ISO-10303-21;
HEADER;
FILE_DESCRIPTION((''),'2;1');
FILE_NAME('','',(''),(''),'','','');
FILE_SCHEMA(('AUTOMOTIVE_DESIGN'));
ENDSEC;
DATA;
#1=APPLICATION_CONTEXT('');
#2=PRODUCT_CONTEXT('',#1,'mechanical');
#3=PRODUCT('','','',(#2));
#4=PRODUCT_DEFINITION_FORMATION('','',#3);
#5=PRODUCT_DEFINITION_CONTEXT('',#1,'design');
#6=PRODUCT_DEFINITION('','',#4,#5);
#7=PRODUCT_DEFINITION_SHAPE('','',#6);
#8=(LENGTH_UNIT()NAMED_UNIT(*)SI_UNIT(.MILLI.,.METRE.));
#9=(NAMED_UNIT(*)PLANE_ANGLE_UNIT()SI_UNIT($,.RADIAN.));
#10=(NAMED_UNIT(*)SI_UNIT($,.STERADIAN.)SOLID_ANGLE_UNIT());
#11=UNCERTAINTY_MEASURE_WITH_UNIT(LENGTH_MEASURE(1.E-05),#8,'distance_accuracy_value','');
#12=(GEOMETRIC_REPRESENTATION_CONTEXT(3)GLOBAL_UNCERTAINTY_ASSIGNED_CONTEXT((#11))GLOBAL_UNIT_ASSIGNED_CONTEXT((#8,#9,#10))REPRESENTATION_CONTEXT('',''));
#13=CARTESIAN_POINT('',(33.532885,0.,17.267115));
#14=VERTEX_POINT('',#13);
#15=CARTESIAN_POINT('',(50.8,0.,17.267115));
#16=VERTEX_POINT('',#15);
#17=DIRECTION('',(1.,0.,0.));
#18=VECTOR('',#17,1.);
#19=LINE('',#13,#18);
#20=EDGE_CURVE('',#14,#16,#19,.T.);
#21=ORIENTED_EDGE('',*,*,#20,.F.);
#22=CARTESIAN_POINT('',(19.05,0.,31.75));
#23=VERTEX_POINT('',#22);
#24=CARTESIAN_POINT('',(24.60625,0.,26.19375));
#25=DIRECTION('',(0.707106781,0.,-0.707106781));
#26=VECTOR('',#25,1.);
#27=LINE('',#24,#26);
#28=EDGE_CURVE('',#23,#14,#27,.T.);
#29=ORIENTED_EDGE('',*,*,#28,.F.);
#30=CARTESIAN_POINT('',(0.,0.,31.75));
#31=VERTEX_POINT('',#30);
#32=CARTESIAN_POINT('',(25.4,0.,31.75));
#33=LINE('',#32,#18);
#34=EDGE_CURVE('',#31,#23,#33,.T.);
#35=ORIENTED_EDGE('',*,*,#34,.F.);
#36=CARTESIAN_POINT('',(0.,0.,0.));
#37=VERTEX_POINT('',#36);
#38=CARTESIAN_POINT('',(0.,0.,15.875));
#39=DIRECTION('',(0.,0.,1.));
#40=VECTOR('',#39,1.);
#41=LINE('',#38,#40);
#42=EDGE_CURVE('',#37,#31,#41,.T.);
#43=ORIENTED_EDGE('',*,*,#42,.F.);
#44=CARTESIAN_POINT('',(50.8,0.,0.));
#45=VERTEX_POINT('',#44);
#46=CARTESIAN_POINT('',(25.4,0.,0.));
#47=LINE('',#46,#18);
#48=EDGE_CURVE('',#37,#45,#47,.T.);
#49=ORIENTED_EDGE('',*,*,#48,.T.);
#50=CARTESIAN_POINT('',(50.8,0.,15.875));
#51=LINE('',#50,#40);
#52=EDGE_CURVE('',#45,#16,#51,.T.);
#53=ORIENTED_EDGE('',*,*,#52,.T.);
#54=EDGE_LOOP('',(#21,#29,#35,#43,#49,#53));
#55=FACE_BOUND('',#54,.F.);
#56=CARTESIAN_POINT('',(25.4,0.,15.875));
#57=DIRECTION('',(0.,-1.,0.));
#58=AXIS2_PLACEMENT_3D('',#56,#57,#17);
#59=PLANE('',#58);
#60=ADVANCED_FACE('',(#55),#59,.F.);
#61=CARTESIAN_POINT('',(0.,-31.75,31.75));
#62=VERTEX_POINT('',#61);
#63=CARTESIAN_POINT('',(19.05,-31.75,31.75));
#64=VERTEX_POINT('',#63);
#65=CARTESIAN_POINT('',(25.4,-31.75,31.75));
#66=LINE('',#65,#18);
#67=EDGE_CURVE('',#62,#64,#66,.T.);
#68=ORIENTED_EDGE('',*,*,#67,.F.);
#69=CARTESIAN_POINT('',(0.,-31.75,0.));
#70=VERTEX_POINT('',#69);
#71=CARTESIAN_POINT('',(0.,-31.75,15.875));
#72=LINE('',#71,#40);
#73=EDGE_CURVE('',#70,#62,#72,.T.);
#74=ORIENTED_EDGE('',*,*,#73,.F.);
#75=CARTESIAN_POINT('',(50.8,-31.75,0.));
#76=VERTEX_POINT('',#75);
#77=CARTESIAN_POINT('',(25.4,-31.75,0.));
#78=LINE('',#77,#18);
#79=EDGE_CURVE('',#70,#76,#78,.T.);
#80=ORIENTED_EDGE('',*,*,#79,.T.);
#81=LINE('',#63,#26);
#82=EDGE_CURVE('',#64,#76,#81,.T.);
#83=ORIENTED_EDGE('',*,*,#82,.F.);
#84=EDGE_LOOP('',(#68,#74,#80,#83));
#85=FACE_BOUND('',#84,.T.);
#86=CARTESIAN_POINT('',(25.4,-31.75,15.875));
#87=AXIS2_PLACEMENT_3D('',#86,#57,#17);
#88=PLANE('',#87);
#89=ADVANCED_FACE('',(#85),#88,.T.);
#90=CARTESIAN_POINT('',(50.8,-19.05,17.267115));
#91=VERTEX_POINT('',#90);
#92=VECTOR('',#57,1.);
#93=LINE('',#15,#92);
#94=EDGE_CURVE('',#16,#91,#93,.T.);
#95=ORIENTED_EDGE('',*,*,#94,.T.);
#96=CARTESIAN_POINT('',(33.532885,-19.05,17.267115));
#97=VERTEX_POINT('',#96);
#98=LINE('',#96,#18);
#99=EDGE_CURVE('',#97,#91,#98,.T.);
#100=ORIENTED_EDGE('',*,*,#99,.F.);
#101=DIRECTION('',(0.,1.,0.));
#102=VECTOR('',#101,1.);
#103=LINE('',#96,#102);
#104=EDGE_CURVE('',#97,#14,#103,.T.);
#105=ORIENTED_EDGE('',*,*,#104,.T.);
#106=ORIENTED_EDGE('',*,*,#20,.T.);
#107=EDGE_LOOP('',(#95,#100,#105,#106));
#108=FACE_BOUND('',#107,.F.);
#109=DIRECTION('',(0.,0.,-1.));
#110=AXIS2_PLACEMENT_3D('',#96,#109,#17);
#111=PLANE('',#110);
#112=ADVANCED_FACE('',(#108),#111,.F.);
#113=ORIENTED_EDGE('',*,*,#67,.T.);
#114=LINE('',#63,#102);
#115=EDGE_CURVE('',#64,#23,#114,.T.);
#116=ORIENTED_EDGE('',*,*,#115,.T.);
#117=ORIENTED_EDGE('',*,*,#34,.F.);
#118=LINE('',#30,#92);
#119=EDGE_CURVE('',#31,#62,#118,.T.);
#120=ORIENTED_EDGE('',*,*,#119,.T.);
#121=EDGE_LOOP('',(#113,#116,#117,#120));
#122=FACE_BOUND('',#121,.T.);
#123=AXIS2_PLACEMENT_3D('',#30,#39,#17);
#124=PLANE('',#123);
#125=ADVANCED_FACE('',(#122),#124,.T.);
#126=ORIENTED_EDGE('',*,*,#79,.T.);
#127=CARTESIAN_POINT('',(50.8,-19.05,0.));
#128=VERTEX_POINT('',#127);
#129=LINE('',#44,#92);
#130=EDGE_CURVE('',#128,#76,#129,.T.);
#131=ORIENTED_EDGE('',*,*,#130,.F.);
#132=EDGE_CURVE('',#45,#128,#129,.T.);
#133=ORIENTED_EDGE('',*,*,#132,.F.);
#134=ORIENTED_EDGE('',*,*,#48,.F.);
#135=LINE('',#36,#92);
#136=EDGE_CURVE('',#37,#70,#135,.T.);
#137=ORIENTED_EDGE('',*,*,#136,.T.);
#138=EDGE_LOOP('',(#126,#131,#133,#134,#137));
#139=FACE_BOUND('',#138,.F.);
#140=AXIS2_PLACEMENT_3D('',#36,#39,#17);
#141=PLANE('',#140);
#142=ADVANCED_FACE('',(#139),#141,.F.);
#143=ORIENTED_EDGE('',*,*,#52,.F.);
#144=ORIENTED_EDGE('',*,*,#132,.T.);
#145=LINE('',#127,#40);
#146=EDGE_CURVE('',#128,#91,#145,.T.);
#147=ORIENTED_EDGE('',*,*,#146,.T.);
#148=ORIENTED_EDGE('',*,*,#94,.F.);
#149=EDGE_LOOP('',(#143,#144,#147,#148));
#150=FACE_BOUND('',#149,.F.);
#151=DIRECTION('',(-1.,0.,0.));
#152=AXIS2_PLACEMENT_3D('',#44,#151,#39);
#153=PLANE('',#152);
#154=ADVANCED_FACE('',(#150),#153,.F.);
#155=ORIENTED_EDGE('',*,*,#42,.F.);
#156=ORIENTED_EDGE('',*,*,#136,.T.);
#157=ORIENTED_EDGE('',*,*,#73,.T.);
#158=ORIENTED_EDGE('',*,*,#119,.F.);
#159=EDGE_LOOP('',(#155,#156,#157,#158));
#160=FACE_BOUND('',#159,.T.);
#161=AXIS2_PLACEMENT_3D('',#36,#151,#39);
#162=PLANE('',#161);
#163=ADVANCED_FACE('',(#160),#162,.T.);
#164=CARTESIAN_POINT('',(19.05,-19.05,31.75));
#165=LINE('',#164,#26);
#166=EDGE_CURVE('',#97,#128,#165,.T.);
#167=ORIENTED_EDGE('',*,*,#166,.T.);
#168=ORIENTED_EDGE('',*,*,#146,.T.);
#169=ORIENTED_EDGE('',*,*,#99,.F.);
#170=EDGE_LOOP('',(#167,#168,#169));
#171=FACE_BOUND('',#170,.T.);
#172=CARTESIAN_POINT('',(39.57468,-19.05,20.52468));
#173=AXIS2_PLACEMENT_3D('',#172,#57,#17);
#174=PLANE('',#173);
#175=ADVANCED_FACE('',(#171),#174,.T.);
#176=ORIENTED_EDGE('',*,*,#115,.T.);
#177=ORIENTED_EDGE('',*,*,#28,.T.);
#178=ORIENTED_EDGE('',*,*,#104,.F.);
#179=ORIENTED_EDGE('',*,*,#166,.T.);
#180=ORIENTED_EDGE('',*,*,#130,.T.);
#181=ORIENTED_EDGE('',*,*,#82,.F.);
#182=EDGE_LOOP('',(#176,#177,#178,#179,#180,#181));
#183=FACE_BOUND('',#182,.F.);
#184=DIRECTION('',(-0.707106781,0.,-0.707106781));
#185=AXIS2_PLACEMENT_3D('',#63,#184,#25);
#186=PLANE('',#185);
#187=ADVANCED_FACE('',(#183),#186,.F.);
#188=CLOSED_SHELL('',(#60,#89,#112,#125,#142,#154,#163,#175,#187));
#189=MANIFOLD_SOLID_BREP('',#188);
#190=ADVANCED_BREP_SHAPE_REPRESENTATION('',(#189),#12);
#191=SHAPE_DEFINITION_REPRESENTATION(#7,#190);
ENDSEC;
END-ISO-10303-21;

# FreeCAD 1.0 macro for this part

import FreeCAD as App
import Part
import Sketcher
Q = App.Units.Quantity

doc = App.newDocument("Part")
body = doc.addObject("PartDesign::Body", "Body")

# Sketch on XZ plane
sketch1 = doc.addObject("Sketcher::SketchObject", "Sketch")
body.addObject(sketch1)
sketch1.AttachmentSupport = (doc.XZ_Plane, [""])
sketch1.MapMode = "FlatFace"
sketch1.addGeometry([
    Part.LineSegment(App.Vector(0, 32, 0), App.Vector(0, 0, 0)),
    Part.LineSegment(App.Vector(0, 0, 0), App.Vector(51, 0, 0)),
    Part.LineSegment(App.Vector(51, 0, 0), App.Vector(51, 32, 0)),
    Part.LineSegment(App.Vector(51, 32, 0), App.Vector(0, 32, 0)),
], False)
sketch1.addConstraint([
    Sketcher.Constraint("Coincident", 0, 2, 1, 1),
    Sketcher.Constraint("Coincident", 1, 2, 2, 1),
    Sketcher.Constraint("Coincident", 2, 2, 3, 1),
    Sketcher.Constraint("Coincident", 3, 2, 0, 1),
    Sketcher.Constraint("Vertical", 0),
    Sketcher.Constraint("Horizontal", 1),
    Sketcher.Constraint("Vertical", 2),
    Sketcher.Constraint("Horizontal", 3),
    Sketcher.Constraint("Coincident", 0, 2, -1, 1),
    Sketcher.Constraint("DistanceX", 1, 1, 1, 2, Q("2 in")),
    Sketcher.Constraint("DistanceY", 0, 2, 0, 1, Q("1.25 in")),
])
pad1 = doc.addObject("PartDesign::Pad", "Pad")
body.addObject(pad1)
pad1.Profile = sketch1
pad1.Length = Q("1.25 in")

# Sketch on XZ plane
sketch2 = doc.addObject("Sketcher::SketchObject", "Sketch001")
body.addObject(sketch2)
sketch2.AttachmentSupport = (doc.XZ_Plane, [""])
sketch2.MapMode = "FlatFace"
sketch2.AttachmentOffset = App.Placement(App.Vector(0, 0, 1.25 * 25.4), App.Rotation())
sketch2.addGeometry([
    Part.LineSegment(App.Vector(51, 32, 0), App.Vector(19, 32, 0)),
    Part.LineSegment(App.Vector(19, 32, 0), App.Vector(51, 0, 0)),
    Part.LineSegment(App.Vector(51, 0, 0), App.Vector(51, 32, 0)),
], False)
sketch2.addConstraint([
    Sketcher.Constraint("Coincident", 0, 2, 1, 1),
    Sketcher.Constraint("Coincident", 1, 2, 2, 1),
    Sketcher.Constraint("Coincident", 2, 2, 0, 1),
    Sketcher.Constraint("Horizontal", 0),
    Sketcher.Constraint("Vertical", 2),
    Sketcher.Constraint("PointOnObject", 1, 2, -1),
    Sketcher.Constraint("Equal", 0, 2),
    Sketcher.Constraint("DistanceX", -1, 1, 1, 2, Q("2 in")),
    Sketcher.Constraint("DistanceX", 0, 2, 0, 1, Q("1.25 in")),
])
pocket1 = doc.addObject("PartDesign::Pocket", "Pocket")
body.addObject(pocket1)
pocket1.Profile = sketch2
pocket1.Length = Q("0.5 in")

# Sketch on XZ plane
sketch3 = doc.addObject("Sketcher::SketchObject", "Sketch002")
body.addObject(sketch3)
sketch3.AttachmentSupport = (doc.XZ_Plane, [""])
sketch3.MapMode = "FlatFace"
sketch3.addGeometry([
    Part.LineSegment(App.Vector(38, 17, 0), App.Vector(25, 32, 0)),
    Part.LineSegment(App.Vector(25, 32, 0), App.Vector(51, 32, 0)),
    Part.LineSegment(App.Vector(51, 32, 0), App.Vector(51, 17, 0)),
    Part.LineSegment(App.Vector(51, 17, 0), App.Vector(38, 17, 0)),
], False)
sketch3.addConstraint([
    Sketcher.Constraint("Coincident", 0, 2, 1, 1),
    Sketcher.Constraint("Coincident", 1, 2, 2, 1),
    Sketcher.Constraint("Coincident", 2, 2, 3, 1),
    Sketcher.Constraint("Coincident", 3, 2, 0, 1),
    Sketcher.Constraint("Horizontal", 1),
    Sketcher.Constraint("Vertical", 2),
    Sketcher.Constraint("Horizontal", 3),
    Sketcher.Constraint("DistanceX", 1, 1, 1, 2, Q("1 in")),
    Sketcher.Constraint("DistanceX", 3, 2, 3, 1, Q("0.5 in")),
    Sketcher.Constraint("DistanceX", -1, 1, 0, 2, Q("1 in")),
    Sketcher.Constraint("DistanceY", -1, 1, 0, 2, Q("1.25 in")),
    Sketcher.Constraint("Distance", 0, Q("19.262501 mm")),
])
pocket2 = doc.addObject("PartDesign::Pocket", "Pocket001")
body.addObject(pocket2)
pocket2.Profile = sketch3
pocket2.Length = Q("1 in")
pocket2.Reversed = True

# Sketch on XZ plane
sketch4 = doc.addObject("Sketcher::SketchObject", "Sketch003")
body.addObject(sketch4)
sketch4.AttachmentSupport = (doc.XZ_Plane, [""])
sketch4.MapMode = "FlatFace"
sketch4.AttachmentOffset = App.Placement(App.Vector(0, 0, 0.75 * 25.4), App.Rotation())
sketch4.addGeometry([
    Part.LineSegment(App.Vector(33.5, 17.3, 0), App.Vector(38.1, 17.3, 0)),
    Part.LineSegment(App.Vector(38.1, 17.3, 0), App.Vector(25.4, 31.8, 0)),
    Part.LineSegment(App.Vector(25.4, 31.8, 0), App.Vector(19.1, 31.8, 0)),
    Part.LineSegment(App.Vector(19.1, 31.8, 0), App.Vector(33.5, 17.3, 0)),
], False)
sketch4.addConstraint([
    Sketcher.Constraint("Coincident", 0, 2, 1, 1),
    Sketcher.Constraint("Coincident", 1, 2, 2, 1),
    Sketcher.Constraint("Coincident", 2, 2, 3, 1),
    Sketcher.Constraint("Coincident", 3, 2, 0, 1),
    Sketcher.Constraint("Horizontal", 0),
    Sketcher.Constraint("Horizontal", 2),
    Sketcher.Constraint("DistanceX", -1, 1, 1, 2, Q("1 in")),
    Sketcher.Constraint("Angle", 3, Q("-45 deg")),
    Sketcher.Constraint("DistanceX", 2, 2, 2, 1, Q("0.25 in")),
    Sketcher.Constraint("DistanceX", -1, 1, 0, 2, Q("1.5 in")),
    Sketcher.Constraint("DistanceY", -1, 1, 1, 2, Q("1.25 in")),
    Sketcher.Constraint("Distance", 1, Q("19.262501 mm")),
])
pocket3 = doc.addObject("PartDesign::Pocket", "Pocket002")
body.addObject(pocket3)
pocket3.Profile = sketch4
pocket3.Length = Q("1 in")

doc.recompute()
